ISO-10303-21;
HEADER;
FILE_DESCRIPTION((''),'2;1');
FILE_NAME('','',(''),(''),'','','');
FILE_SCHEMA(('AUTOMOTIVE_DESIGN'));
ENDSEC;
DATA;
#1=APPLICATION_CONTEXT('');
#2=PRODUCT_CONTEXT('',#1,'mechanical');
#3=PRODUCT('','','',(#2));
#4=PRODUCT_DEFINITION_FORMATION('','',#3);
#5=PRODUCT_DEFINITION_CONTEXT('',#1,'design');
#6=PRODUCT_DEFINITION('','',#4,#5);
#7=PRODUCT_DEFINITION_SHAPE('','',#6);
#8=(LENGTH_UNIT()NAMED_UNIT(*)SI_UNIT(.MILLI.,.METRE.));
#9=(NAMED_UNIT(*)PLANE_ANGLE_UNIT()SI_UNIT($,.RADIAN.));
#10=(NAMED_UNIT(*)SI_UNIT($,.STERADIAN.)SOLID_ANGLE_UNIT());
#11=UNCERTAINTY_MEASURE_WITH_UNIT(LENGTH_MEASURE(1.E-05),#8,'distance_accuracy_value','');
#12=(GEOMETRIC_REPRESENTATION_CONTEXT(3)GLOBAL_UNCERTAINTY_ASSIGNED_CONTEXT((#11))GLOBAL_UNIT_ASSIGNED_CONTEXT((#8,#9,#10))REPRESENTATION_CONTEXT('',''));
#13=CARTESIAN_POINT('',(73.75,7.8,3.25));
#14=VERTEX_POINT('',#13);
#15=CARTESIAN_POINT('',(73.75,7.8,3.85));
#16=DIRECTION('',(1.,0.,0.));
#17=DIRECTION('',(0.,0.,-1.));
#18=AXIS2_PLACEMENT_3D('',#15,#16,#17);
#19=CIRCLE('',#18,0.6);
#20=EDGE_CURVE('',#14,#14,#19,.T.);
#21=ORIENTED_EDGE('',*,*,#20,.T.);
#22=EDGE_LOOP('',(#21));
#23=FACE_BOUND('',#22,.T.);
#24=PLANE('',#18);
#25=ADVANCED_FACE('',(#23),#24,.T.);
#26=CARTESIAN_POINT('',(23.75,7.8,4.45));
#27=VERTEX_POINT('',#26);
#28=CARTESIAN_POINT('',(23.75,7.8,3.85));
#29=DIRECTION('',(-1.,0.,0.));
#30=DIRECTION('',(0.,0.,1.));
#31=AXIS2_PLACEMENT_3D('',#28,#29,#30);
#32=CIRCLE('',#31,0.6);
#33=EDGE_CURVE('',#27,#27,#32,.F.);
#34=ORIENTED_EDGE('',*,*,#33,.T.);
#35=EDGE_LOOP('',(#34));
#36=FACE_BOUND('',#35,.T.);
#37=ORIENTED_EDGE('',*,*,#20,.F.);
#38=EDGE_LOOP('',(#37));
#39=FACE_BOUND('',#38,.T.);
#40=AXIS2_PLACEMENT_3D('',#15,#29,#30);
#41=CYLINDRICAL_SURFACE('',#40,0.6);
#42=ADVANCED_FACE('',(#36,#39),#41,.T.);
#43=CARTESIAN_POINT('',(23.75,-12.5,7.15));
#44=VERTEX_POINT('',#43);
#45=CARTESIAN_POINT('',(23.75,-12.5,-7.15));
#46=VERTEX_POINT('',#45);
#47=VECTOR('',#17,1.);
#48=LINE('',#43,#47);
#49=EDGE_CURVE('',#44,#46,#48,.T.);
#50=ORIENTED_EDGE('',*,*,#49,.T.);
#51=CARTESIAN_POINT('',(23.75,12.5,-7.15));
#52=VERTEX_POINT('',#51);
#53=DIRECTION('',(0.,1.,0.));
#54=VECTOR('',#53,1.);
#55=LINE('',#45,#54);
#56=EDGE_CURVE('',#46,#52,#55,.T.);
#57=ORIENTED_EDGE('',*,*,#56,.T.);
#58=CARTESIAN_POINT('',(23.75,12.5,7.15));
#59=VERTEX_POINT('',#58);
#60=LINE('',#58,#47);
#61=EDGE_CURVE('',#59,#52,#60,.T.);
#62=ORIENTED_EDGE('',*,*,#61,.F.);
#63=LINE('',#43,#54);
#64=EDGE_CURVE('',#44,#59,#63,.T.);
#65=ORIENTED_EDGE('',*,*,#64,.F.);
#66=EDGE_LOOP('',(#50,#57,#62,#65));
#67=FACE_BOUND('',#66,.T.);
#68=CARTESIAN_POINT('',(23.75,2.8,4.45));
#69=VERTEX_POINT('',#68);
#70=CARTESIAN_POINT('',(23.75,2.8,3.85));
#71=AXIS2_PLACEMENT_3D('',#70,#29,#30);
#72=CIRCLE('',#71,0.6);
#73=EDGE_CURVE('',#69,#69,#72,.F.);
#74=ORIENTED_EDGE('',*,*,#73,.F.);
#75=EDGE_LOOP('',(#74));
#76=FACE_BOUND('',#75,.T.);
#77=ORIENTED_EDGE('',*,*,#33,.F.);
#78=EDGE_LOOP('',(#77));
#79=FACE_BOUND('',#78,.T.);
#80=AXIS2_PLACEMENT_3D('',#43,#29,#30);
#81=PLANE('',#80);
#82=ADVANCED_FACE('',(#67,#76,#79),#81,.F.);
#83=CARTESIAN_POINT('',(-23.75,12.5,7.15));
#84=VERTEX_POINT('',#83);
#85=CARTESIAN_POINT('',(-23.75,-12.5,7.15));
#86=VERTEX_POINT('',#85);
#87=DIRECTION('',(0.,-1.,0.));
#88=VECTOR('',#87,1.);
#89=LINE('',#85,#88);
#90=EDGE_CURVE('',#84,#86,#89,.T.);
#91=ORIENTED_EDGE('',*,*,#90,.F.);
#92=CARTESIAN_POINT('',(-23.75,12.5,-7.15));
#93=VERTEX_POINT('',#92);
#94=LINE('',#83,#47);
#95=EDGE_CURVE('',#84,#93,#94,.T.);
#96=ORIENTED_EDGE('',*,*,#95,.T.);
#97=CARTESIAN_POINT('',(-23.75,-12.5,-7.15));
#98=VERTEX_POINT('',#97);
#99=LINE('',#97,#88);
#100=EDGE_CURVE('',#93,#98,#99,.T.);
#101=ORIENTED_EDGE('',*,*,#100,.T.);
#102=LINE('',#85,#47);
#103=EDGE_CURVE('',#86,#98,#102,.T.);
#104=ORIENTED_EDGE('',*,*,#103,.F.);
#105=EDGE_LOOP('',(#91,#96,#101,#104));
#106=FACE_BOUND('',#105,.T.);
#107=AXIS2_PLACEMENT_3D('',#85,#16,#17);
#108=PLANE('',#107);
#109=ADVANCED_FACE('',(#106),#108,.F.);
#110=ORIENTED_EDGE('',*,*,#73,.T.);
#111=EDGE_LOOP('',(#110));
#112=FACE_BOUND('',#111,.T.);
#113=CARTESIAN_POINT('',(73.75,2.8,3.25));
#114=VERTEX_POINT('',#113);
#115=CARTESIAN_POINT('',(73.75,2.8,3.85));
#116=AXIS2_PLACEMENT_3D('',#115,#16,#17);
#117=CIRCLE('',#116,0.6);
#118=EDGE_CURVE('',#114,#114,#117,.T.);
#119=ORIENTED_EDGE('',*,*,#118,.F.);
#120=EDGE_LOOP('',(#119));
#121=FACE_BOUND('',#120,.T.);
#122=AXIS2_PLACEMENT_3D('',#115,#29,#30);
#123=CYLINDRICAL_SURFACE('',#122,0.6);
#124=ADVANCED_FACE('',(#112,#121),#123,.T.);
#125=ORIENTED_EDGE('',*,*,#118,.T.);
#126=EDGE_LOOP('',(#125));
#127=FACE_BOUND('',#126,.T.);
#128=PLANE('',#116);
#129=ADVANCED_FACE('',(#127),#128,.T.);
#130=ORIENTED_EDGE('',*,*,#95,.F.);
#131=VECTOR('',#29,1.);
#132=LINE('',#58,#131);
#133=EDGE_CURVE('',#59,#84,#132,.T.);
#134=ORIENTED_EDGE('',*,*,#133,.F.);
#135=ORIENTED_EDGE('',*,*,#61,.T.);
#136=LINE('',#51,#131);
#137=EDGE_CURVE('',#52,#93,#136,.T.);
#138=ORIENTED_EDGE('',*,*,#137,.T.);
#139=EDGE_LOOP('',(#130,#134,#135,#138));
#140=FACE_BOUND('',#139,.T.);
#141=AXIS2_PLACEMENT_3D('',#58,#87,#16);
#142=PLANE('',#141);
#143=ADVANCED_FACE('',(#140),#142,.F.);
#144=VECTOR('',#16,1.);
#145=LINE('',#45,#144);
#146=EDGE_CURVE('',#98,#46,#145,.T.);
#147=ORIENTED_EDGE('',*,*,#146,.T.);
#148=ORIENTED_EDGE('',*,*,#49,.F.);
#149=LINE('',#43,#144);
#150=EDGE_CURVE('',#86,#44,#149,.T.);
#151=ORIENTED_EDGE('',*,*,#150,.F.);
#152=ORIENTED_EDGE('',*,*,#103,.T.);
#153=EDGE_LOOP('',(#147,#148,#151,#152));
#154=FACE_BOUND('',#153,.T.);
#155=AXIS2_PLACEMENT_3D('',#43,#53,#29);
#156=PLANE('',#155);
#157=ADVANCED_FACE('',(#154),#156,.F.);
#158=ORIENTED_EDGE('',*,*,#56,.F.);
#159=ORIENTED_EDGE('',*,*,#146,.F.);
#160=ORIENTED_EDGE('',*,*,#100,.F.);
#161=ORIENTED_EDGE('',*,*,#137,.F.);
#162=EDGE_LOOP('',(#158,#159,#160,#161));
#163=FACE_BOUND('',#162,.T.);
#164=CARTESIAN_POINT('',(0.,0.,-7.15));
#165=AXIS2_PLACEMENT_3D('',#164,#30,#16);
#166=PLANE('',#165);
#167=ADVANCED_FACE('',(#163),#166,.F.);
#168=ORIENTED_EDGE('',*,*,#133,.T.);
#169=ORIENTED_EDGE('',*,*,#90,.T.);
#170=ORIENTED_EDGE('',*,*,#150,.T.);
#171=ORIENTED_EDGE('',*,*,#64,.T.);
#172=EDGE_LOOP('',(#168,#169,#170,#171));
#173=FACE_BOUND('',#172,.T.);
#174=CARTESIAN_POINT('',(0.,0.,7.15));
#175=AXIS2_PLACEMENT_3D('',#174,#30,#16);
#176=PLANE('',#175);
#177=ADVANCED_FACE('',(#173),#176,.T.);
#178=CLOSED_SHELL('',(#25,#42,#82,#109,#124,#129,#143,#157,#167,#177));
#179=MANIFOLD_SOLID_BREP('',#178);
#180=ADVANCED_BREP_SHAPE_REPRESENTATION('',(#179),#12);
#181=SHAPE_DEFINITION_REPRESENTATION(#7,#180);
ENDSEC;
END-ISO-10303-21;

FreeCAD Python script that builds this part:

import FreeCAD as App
import Part
import Sketcher

V = App.Vector
Q = App.Units.Quantity

doc = App.newDocument("Part")
body = doc.addObject("PartDesign::Body", "Body")

# Sketch on XY plane
sketch1 = body.newObject("Sketcher::SketchObject", "Sketch")
sketch1.AttachmentSupport = (doc.getObject("XY_Plane"), [""])
sketch1.MapMode = "FlatFace"
sketch1.addGeometry([
    Part.LineSegment(V(-24, 12, 0), V(-24, -12, 0)),
    Part.LineSegment(V(-24, -12, 0), V(24, -12, 0)),
    Part.LineSegment(V(24, -12, 0), V(24, 12, 0)),
    Part.LineSegment(V(24, 12, 0), V(-24, 12, 0)),
], False)
sketch1.addConstraint([
    Sketcher.Constraint("Coincident", 0, 2, 1, 1),
    Sketcher.Constraint("Coincident", 1, 2, 2, 1),
    Sketcher.Constraint("Coincident", 2, 2, 3, 1),
    Sketcher.Constraint("Coincident", 3, 2, 0, 1),
    Sketcher.Constraint("Vertical", 0),
    Sketcher.Constraint("Horizontal", 1),
    Sketcher.Constraint("Vertical", 2),
    Sketcher.Constraint("Horizontal", 3),
    Sketcher.Constraint("Symmetric", 0, 2, 2, 2, -1, 1),
    Sketcher.Constraint("DistanceY", 0, 2, 0, 1, Q("25 mm")),
    Sketcher.Constraint("DistanceX", 1, 1, 1, 2, Q("47.5 mm")),
])
pad1 = body.newObject("PartDesign::Pad", "Pad")
pad1.Profile = sketch1
pad1.Length = 14.3
pad1.Midplane = True

# Sketch on YZ plane
sketch2 = body.newObject("Sketcher::SketchObject", "Sketch001")
sketch2.AttachmentSupport = (doc.getObject("YZ_Plane"), [""])
sketch2.MapMode = "FlatFace"
sketch2.AttachmentOffset = App.Placement(V(0, 0, 23.75), App.Rotation())
sketch2.addGeometry([
    Part.Circle(V(2.8, 3.9, 0), V(0, 0, 1), 0.6),
    Part.Circle(V(7.8, 3.9, 0), V(0, 0, 1), 0.6),
], False)
sketch2.addConstraint([
    Sketcher.Constraint("Equal", 0, 1),
    Sketcher.Constraint("Horizontal", 0, 3, 1, 3),
    Sketcher.Constraint("Diameter", 0, Q("1.2 mm")),
    Sketcher.Constraint("DistanceX", 0, 3, 1, 3, Q("5 mm")),
    Sketcher.Constraint("DistanceX", -1, 1, 0, 3, Q("2.8 mm")),
    Sketcher.Constraint("DistanceY", -1, 1, 0, 3, Q("3.85 mm")),
])
pad2 = body.newObject("PartDesign::Pad", "Pad001")
pad2.Profile = sketch2
pad2.Length = 50

doc.recompute()
